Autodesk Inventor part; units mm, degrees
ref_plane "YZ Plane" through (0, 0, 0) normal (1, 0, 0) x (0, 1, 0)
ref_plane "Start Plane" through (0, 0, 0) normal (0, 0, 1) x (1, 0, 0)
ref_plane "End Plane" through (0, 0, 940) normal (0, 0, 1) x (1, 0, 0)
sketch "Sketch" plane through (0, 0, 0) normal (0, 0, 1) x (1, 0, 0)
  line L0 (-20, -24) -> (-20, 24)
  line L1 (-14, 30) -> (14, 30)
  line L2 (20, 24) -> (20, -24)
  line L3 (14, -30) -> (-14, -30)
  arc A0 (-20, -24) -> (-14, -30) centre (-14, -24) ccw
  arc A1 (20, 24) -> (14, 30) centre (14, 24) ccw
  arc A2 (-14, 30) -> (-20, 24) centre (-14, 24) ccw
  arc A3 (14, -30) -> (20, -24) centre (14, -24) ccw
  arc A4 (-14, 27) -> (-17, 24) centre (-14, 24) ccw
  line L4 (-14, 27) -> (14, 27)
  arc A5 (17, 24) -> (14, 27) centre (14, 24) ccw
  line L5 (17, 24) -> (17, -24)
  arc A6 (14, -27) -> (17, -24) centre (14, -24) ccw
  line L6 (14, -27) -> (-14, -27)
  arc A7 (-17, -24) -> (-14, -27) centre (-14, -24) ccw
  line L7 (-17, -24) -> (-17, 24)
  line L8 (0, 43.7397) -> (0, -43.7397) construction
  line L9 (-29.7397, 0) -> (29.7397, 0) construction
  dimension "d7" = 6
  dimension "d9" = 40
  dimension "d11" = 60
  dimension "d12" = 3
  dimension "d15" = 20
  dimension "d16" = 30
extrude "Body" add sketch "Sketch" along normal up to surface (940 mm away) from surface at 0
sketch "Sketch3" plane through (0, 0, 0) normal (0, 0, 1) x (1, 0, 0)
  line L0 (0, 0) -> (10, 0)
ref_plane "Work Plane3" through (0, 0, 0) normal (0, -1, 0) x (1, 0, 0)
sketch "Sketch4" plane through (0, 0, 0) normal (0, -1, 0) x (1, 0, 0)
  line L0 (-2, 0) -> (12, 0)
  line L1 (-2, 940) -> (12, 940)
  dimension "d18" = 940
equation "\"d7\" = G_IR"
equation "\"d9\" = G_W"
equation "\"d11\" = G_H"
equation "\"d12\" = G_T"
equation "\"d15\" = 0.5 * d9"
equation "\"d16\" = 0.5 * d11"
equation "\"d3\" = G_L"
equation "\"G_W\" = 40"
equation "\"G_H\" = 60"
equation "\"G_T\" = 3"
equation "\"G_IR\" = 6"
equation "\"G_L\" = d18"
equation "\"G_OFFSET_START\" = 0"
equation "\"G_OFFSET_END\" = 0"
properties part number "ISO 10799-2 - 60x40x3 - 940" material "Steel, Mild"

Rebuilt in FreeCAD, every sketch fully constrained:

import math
import FreeCAD as App
import Part
import Sketcher
from FreeCAD import Vector

doc = App.newDocument("Part")
body = doc.addObject("PartDesign::Body", "Body")

sketch1 = body.newObject("Sketcher::SketchObject", "Sketch")
sketch1.AttachmentSupport = (doc.getObject("XY_Plane"), [""])
sketch1.MapMode = "FlatFace"
sketch1.addGeometry([
    Part.LineSegment(Vector(-20, 24, 0), Vector(-20, -24, 0)),
    Part.ArcOfCircle(Part.Circle(Vector(-14, -24, 0), Vector(0, 0, 1), 6), math.radians(180), math.radians(270)),
    Part.LineSegment(Vector(-14, -30, 0), Vector(14, -30, 0)),
    Part.ArcOfCircle(Part.Circle(Vector(14, -24, 0), Vector(0, 0, 1), 6), math.radians(-90), math.radians(0)),
    Part.LineSegment(Vector(20, -24, 0), Vector(20, 24, 0)),
    Part.ArcOfCircle(Part.Circle(Vector(14, 24, 0), Vector(0, 0, 1), 6), math.radians(0), math.radians(90)),
    Part.LineSegment(Vector(14, 30, 0), Vector(-14, 30, 0)),
    Part.ArcOfCircle(Part.Circle(Vector(-14, 24, 0), Vector(0, 0, 1), 6), math.radians(90), math.radians(180)),
    Part.ArcOfCircle(Part.Circle(Vector(-14, 24, 0), Vector(0, 0, 1), 3), math.radians(90), math.radians(180)),
    Part.LineSegment(Vector(-14, 27, 0), Vector(14, 27, 0)),
    Part.ArcOfCircle(Part.Circle(Vector(14, 24, 0), Vector(0, 0, 1), 3), math.radians(0), math.radians(90)),
    Part.LineSegment(Vector(17, 24, 0), Vector(17, -24, 0)),
    Part.ArcOfCircle(Part.Circle(Vector(14, -24, 0), Vector(0, 0, 1), 3), math.radians(-90), math.radians(0)),
    Part.LineSegment(Vector(14, -27, 0), Vector(-14, -27, 0)),
    Part.ArcOfCircle(Part.Circle(Vector(-14, -24, 0), Vector(0, 0, 1), 3), math.radians(180), math.radians(270)),
    Part.LineSegment(Vector(-17, -24, 0), Vector(-17, 24, 0)),
], False)
sketch1.addConstraint([
    Sketcher.Constraint("Tangent", 0, 2, 1, 1),
    Sketcher.Constraint("Tangent", 1, 2, 2, 1),
    Sketcher.Constraint("Tangent", 2, 2, 3, 1),
    Sketcher.Constraint("Tangent", 3, 2, 4, 1),
    Sketcher.Constraint("Tangent", 4, 2, 5, 1),
    Sketcher.Constraint("Tangent", 5, 2, 6, 1),
    Sketcher.Constraint("Tangent", 6, 2, 7, 1),
    Sketcher.Constraint("Tangent", 7, 2, 0, 1),
    Sketcher.Constraint("Tangent", 8, 1, 9, 1),
    Sketcher.Constraint("Tangent", 9, 2, 10, 2),
    Sketcher.Constraint("Tangent", 10, 1, 11, 1),
    Sketcher.Constraint("Tangent", 11, 2, 12, 2),
    Sketcher.Constraint("Tangent", 12, 1, 13, 1),
    Sketcher.Constraint("Tangent", 13, 2, 14, 2),
    Sketcher.Constraint("Tangent", 14, 1, 15, 1),
    Sketcher.Constraint("Tangent", 15, 2, 8, 2),
    Sketcher.Constraint("Vertical", 0),
    Sketcher.Constraint("Horizontal", 2),
    Sketcher.Constraint("Vertical", 4),
    Sketcher.Constraint("Horizontal", 6),
    Sketcher.Constraint("Horizontal", 9),
    Sketcher.Constraint("Vertical", 11),
    Sketcher.Constraint("Horizontal", 13),
    Sketcher.Constraint("Vertical", 15),
    Sketcher.Constraint("Coincident", 8, 3, 7, 3),
    Sketcher.Constraint("Coincident", 10, 3, 5, 3),
    Sketcher.Constraint("Coincident", 12, 3, 3, 3),
    Sketcher.Constraint("Equal", 1, 3),
    Sketcher.Constraint("Equal", 3, 5),
    Sketcher.Constraint("Equal", 5, 7),
    Sketcher.Constraint("Equal", 12, 14),
    Sketcher.Constraint("Symmetric", 1, 3, 5, 3, -1, 1),
    Sketcher.Constraint("Radius", 1, 6.0),
    Sketcher.Constraint("Radius", 8, 3.0),
    Sketcher.Constraint("DistanceX", 0, 2, -1, 1, 20.0),
    Sketcher.Constraint("DistanceY", 1, 2, -1, 1, 30.0),
])
pad1 = body.newObject("PartDesign::Pad", "Pad")
pad1.Profile = sketch1
pad1.Length = 940

doc.recompute()
